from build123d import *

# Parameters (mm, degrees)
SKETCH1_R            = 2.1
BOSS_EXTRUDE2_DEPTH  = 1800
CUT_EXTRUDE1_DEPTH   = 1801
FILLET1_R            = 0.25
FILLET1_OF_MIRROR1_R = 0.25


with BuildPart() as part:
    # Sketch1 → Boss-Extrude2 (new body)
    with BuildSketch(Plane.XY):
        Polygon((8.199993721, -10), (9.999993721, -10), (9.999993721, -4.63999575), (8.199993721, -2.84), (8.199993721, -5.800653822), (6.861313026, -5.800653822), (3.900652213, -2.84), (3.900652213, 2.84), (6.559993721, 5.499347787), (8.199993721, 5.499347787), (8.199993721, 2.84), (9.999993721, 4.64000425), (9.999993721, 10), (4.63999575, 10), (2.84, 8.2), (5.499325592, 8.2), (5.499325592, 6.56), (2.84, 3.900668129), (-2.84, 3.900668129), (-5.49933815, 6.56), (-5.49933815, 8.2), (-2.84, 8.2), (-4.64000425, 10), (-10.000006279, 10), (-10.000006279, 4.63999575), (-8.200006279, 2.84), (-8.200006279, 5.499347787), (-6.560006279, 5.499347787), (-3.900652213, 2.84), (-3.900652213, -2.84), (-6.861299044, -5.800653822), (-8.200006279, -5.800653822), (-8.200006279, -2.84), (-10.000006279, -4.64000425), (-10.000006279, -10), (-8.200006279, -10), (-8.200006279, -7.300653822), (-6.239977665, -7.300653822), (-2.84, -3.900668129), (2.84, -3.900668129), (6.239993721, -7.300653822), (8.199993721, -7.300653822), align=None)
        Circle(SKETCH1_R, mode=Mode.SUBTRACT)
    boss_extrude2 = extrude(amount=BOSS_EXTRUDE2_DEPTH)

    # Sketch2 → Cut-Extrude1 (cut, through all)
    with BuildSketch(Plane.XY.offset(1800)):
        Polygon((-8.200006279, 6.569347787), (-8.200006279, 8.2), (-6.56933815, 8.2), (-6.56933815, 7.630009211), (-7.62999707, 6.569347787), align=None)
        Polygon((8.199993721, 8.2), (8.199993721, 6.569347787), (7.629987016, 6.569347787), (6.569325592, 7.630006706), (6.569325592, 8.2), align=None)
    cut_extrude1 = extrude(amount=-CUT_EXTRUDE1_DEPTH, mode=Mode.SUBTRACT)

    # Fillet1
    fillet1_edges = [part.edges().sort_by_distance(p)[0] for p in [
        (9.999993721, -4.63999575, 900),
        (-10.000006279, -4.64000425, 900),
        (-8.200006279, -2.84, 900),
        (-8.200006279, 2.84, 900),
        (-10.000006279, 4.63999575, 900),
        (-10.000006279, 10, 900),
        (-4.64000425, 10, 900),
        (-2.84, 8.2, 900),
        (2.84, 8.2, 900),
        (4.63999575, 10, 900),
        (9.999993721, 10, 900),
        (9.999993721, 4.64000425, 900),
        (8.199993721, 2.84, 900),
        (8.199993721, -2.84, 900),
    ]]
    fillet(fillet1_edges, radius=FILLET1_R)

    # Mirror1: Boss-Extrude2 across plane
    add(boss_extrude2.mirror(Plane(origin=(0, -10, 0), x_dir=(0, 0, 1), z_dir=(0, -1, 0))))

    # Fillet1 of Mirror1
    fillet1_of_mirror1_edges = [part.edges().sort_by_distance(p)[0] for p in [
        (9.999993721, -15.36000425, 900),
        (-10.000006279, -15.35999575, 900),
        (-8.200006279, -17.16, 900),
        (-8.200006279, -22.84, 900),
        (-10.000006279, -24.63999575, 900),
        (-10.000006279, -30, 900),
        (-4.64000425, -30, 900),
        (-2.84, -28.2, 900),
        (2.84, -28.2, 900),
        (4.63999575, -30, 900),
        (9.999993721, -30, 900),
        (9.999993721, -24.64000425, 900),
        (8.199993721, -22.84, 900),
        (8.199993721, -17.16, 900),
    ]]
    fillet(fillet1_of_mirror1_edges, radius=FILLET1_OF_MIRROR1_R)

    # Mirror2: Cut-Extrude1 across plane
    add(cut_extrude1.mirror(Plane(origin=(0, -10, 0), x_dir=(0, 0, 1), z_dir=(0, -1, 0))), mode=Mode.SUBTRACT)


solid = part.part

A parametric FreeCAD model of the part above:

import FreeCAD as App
import Part
import Sketcher

V = App.Vector
Q = App.Units.Quantity


def edges_at(feature, points):
    """Names of the edges that pass closest to the given points."""
    edges = feature.Shape.Edges
    near = lambda p: min(range(len(edges)), key=lambda i: edges[i].distToShape(Part.Vertex(*p))[0])
    return sorted({f"Edge{near(p) + 1}" for p in points})

doc = App.newDocument("Part")
body = doc.addObject("PartDesign::Body", "Body")

sketch1 = body.newObject("Sketcher::SketchObject", "Sketch")
sketch1.AttachmentSupport = (doc.getObject("XY_Plane"), [""])
sketch1.MapMode = "FlatFace"
sketch1.addGeometry([
    Part.LineSegment(V(8.199994, -10, 0), V(9.999994, -10, 0)),
    Part.LineSegment(V(9.999994, -10, 0), V(9.999994, -4.639996, 0)),
    Part.LineSegment(V(9.999994, -4.639996, 0), V(8.199994, -2.84, 0)),
    Part.LineSegment(V(8.199994, -2.84, 0), V(8.199994, -5.800654, 0)),
    Part.LineSegment(V(8.199994, -5.800654, 0), V(6.861313, -5.800654, 0)),
    Part.LineSegment(V(6.861313, -5.800654, 0), V(3.900652, -2.84, 0)),
    Part.LineSegment(V(3.900652, -2.84, 0), V(3.900652, 2.84, 0)),
    Part.LineSegment(V(3.900652, 2.84, 0), V(6.559994, 5.499348, 0)),
    Part.LineSegment(V(6.559994, 5.499348, 0), V(8.199994, 5.499348, 0)),
    Part.LineSegment(V(8.199994, 5.499348, 0), V(8.199994, 2.84, 0)),
    Part.LineSegment(V(8.199994, 2.84, 0), V(9.999994, 4.640004, 0)),
    Part.LineSegment(V(9.999994, 4.640004, 0), V(9.999994, 10, 0)),
    Part.LineSegment(V(9.999994, 10, 0), V(4.639996, 10, 0)),
    Part.LineSegment(V(4.639996, 10, 0), V(2.84, 8.2, 0)),
    Part.LineSegment(V(2.84, 8.2, 0), V(5.499326, 8.2, 0)),
    Part.LineSegment(V(5.499326, 8.2, 0), V(5.499326, 6.56, 0)),
    Part.LineSegment(V(5.499326, 6.56, 0), V(2.84, 3.900668, 0)),
    Part.LineSegment(V(2.84, 3.900668, 0), V(-2.84, 3.900668, 0)),
    Part.LineSegment(V(-2.84, 3.900668, 0), V(-5.499338, 6.56, 0)),
    Part.LineSegment(V(-5.499338, 6.56, 0), V(-5.499338, 8.2, 0)),
    Part.LineSegment(V(-5.499338, 8.2, 0), V(-2.84, 8.2, 0)),
    Part.LineSegment(V(-2.84, 8.2, 0), V(-4.640004, 10, 0)),
    Part.LineSegment(V(-4.640004, 10, 0), V(-10.000006, 10, 0)),
    Part.LineSegment(V(-10.000006, 10, 0), V(-10.000006, 4.639996, 0)),
    Part.LineSegment(V(-10.000006, 4.639996, 0), V(-8.200006, 2.84, 0)),
    Part.LineSegment(V(-8.200006, 2.84, 0), V(-8.200006, 5.499348, 0)),
    Part.LineSegment(V(-8.200006, 5.499348, 0), V(-6.560006, 5.499348, 0)),
    Part.LineSegment(V(-6.560006, 5.499348, 0), V(-3.900652, 2.84, 0)),
    Part.LineSegment(V(-3.900652, 2.84, 0), V(-3.900652, -2.84, 0)),
    Part.LineSegment(V(-3.900652, -2.84, 0), V(-6.861299, -5.800654, 0)),
    Part.LineSegment(V(-6.861299, -5.800654, 0), V(-8.200006, -5.800654, 0)),
    Part.LineSegment(V(-8.200006, -5.800654, 0), V(-8.200006, -2.84, 0)),
    Part.LineSegment(V(-8.200006, -2.84, 0), V(-10.000006, -4.640004, 0)),
    Part.LineSegment(V(-10.000006, -4.640004, 0), V(-10.000006, -10, 0)),
    Part.LineSegment(V(-10.000006, -10, 0), V(-8.200006, -10, 0)),
    Part.LineSegment(V(-8.200006, -10, 0), V(-8.200006, -7.300654, 0)),
    Part.LineSegment(V(-8.200006, -7.300654, 0), V(-6.239978, -7.300654, 0)),
    Part.LineSegment(V(-6.239978, -7.300654, 0), V(-2.84, -3.900668, 0)),
    Part.LineSegment(V(-2.84, -3.900668, 0), V(2.84, -3.900668, 0)),
    Part.LineSegment(V(2.84, -3.900668, 0), V(6.239994, -7.300654, 0)),
    Part.LineSegment(V(6.239994, -7.300654, 0), V(8.199994, -7.300654, 0)),
    Part.LineSegment(V(8.199994, -7.300654, 0), V(8.199994, -10, 0)),
    Part.Circle(V(0, 0, 0), V(0, 0, 1), 2.1),
], False)
sketch1.addConstraint([
    Sketcher.Constraint("Coincident", 0, 2, 1, 1),
    Sketcher.Constraint("Coincident", 1, 2, 2, 1),
    Sketcher.Constraint("Coincident", 2, 2, 3, 1),
    Sketcher.Constraint("Coincident", 3, 2, 4, 1),
    Sketcher.Constraint("Coincident", 4, 2, 5, 1),
    Sketcher.Constraint("Coincident", 5, 2, 6, 1),
    Sketcher.Constraint("Coincident", 6, 2, 7, 1),
    Sketcher.Constraint("Coincident", 7, 2, 8, 1),
    Sketcher.Constraint("Coincident", 8, 2, 9, 1),
    Sketcher.Constraint("Coincident", 9, 2, 10, 1),
    Sketcher.Constraint("Coincident", 10, 2, 11, 1),
    Sketcher.Constraint("Coincident", 11, 2, 12, 1),
    Sketcher.Constraint("Coincident", 12, 2, 13, 1),
    Sketcher.Constraint("Coincident", 13, 2, 14, 1),
    Sketcher.Constraint("Coincident", 14, 2, 15, 1),
    Sketcher.Constraint("Coincident", 15, 2, 16, 1),
    Sketcher.Constraint("Coincident", 16, 2, 17, 1),
    Sketcher.Constraint("Coincident", 17, 2, 18, 1),
    Sketcher.Constraint("Coincident", 18, 2, 19, 1),
    Sketcher.Constraint("Coincident", 19, 2, 20, 1),
    Sketcher.Constraint("Coincident", 20, 2, 21, 1),
    Sketcher.Constraint("Coincident", 21, 2, 22, 1),
    Sketcher.Constraint("Coincident", 22, 2, 23, 1),
    Sketcher.Constraint("Coincident", 23, 2, 24, 1),
    Sketcher.Constraint("Coincident", 24, 2, 25, 1),
    Sketcher.Constraint("Coincident", 25, 2, 26, 1),
    Sketcher.Constraint("Coincident", 26, 2, 27, 1),
    Sketcher.Constraint("Coincident", 27, 2, 28, 1),
    Sketcher.Constraint("Coincident", 28, 2, 29, 1),
    Sketcher.Constraint("Coincident", 29, 2, 30, 1),
    Sketcher.Constraint("Coincident", 30, 2, 31, 1),
    Sketcher.Constraint("Coincident", 31, 2, 32, 1),
    Sketcher.Constraint("Coincident", 32, 2, 33, 1),
    Sketcher.Constraint("Coincident", 33, 2, 34, 1),
    Sketcher.Constraint("Coincident", 34, 2, 35, 1),
    Sketcher.Constraint("Coincident", 35, 2, 36, 1),
    Sketcher.Constraint("Coincident", 36, 2, 37, 1),
    Sketcher.Constraint("Coincident", 37, 2, 38, 1),
    Sketcher.Constraint("Coincident", 38, 2, 39, 1),
    Sketcher.Constraint("Coincident", 39, 2, 40, 1),
    Sketcher.Constraint("Coincident", 40, 2, 41, 1),
    Sketcher.Constraint("Coincident", 41, 2, 0, 1),
    Sketcher.Constraint("Horizontal", 0),
    Sketcher.Constraint("Vertical", 1),
    Sketcher.Constraint("Vertical", 3),
    Sketcher.Constraint("Horizontal", 4),
    Sketcher.Constraint("Vertical", 6),
    Sketcher.Constraint("Horizontal", 8),
    Sketcher.Constraint("Vertical", 9),
    Sketcher.Constraint("Vertical", 11),
    Sketcher.Constraint("Horizontal", 12),
    Sketcher.Constraint("Horizontal", 14),
    Sketcher.Constraint("Vertical", 15),
    Sketcher.Constraint("Horizontal", 17),
    Sketcher.Constraint("Vertical", 19),
    Sketcher.Constraint("Horizontal", 20),
    Sketcher.Constraint("Horizontal", 22),
    Sketcher.Constraint("Vertical", 23),
    Sketcher.Constraint("Vertical", 25),
    Sketcher.Constraint("Horizontal", 26),
    Sketcher.Constraint("Vertical", 28),
    Sketcher.Constraint("Horizontal", 30),
    Sketcher.Constraint("Vertical", 31),
    Sketcher.Constraint("Vertical", 33),
    Sketcher.Constraint("Horizontal", 34),
    Sketcher.Constraint("Vertical", 35),
    Sketcher.Constraint("Horizontal", 36),
    Sketcher.Constraint("Horizontal", 38),
    Sketcher.Constraint("Horizontal", 40),
    Sketcher.Constraint("Vertical", 41),
    Sketcher.Constraint("Coincident", 42, 3, -1, 1),
    Sketcher.Constraint("Diameter", 42, Q("4.2 mm")),
    Sketcher.Constraint("DistanceX", 0, 1, 0, 2, Q("1.8 mm")),
    Sketcher.Constraint("DistanceX", 34, 1, 34, 2, Q("1.8 mm")),
    Sketcher.Constraint("DistanceY", 0, 2, -1, 1, Q("10 mm")),
    Sketcher.Constraint("DistanceY", -1, 1, 11, 2, Q("10 mm")),
    Sketcher.Constraint("DistanceY", -1, 1, 21, 2, Q("10 mm")),
    Sketcher.Constraint("DistanceY", 33, 2, -1, 1, Q("10 mm")),
    Sketcher.Constraint("DistanceX", 8, 1, 8, 2, Q("1.64 mm")),
    Sketcher.Constraint("DistanceX", 17, 2, 17, 1, Q("5.68 mm")),
    Sketcher.Constraint("DistanceX", 26, 1, 26, 2, Q("1.64 mm")),
    Sketcher.Constraint("DistanceX", 38, 1, 38, 2, Q("5.68 mm")),
    Sketcher.Constraint("DistanceX", 40, 1, 40, 2, Q("1.96 mm")),
    Sketcher.Constraint("DistanceY", 6, 1, 6, 2, Q("5.68 mm")),
    Sketcher.Constraint("DistanceY", 15, 2, 15, 1, Q("1.64 mm")),
    Sketcher.Constraint("DistanceY", 19, 1, 19, 2, Q("1.64 mm")),
    Sketcher.Constraint("DistanceY", 28, 2, 28, 1, Q("5.68 mm")),
    Sketcher.Constraint("DistanceY", -1, 1, 13, 2, Q("8.2 mm")),
    Sketcher.Constraint("DistanceY", -1, 1, 19, 2, Q("8.2 mm")),
    Sketcher.Constraint("DistanceX", 2, 2, 1, 2, Q("1.8 mm")),
    Sketcher.Constraint("DistanceX", 8, 2, 10, 2, Q("1.8 mm")),
    Sketcher.Constraint("DistanceX", 2, 2, 10, 2, Q("1.8 mm")),
    Sketcher.Constraint("DistanceX", 23, 2, 24, 2, Q("1.8 mm")),
    Sketcher.Constraint("DistanceX", 32, 2, 30, 2, Q("1.8 mm")),
    Sketcher.Constraint("DistanceX", 32, 2, 24, 2, Q("1.8 mm")),
    Sketcher.Constraint("DistanceY", 35, 2, 30, 2, Q("1.5 mm")),
    Sketcher.Constraint("DistanceY", 39, 2, 4, 2, Q("1.5 mm")),
    Sketcher.Constraint("DistanceY", 2, 2, -1, 1, Q("2.84 mm")),
    Sketcher.Constraint("DistanceY", 5, 2, -1, 1, Q("2.84 mm")),
    Sketcher.Constraint("DistanceY", -1, 1, 9, 2, Q("2.84 mm")),
    Sketcher.Constraint("DistanceX", -1, 1, 13, 2, Q("2.84 mm")),
    Sketcher.Constraint("DistanceX", -1, 1, 16, 2, Q("2.84 mm")),
    Sketcher.Constraint("DistanceX", 20, 2, -1, 1, Q("2.84 mm")),
    Sketcher.Constraint("DistanceY", -1, 1, 24, 2, Q("2.84 mm")),
    Sketcher.Constraint("DistanceY", -1, 1, 27, 2, Q("2.84 mm")),
    Sketcher.Constraint("DistanceY", 31, 2, -1, 1, Q("2.84 mm")),
    Sketcher.Constraint("DistanceX", 37, 2, -1, 1, Q("2.84 mm")),
    Sketcher.Constraint("Distance", 5, Q("4.187002 mm")),
    Sketcher.Constraint("Distance", 37, Q("4.8083 mm")),
    Sketcher.Constraint("DistanceX", 4, 2, 4, 1, Q("1.338681 mm")),
    Sketcher.Constraint("DistanceX", 20, 1, 20, 2, Q("2.659338 mm")),
    Sketcher.Constraint("DistanceX", 36, 1, 36, 2, Q("1.960029 mm")),
    Sketcher.Constraint("DistanceX", 29, 2, -1, 1, Q("6.861299 mm")),
    Sketcher.Constraint("Distance", 2, Q("2.545581 mm")),
    Sketcher.Constraint("Distance", 7, Q("3.760881 mm")),
    Sketcher.Constraint("Distance", 13, Q("2.545581 mm")),
    Sketcher.Constraint("Distance", 16, Q("3.760859 mm")),
    Sketcher.Constraint("Distance", 24, Q("2.545581 mm")),
    Sketcher.Constraint("Distance", 27, Q("3.76089 mm")),
    Sketcher.Constraint("Distance", 29, Q("4.186992 mm")),
    Sketcher.Constraint("Distance", 39, Q("4.808312 mm")),
    Sketcher.Constraint("DistanceX", 12, 2, 12, 1, Q("5.359998 mm")),
    Sketcher.Constraint("DistanceX", 14, 1, 14, 2, Q("2.659326 mm")),
    Sketcher.Constraint("DistanceX", 22, 2, 22, 1, Q("5.360002 mm")),
    Sketcher.Constraint("DistanceX", 30, 2, 30, 1, Q("1.338707 mm")),
    Sketcher.Constraint("DistanceY", 3, 2, 3, 1, Q("2.960654 mm")),
    Sketcher.Constraint("DistanceY", 11, 1, 11, 2, Q("5.359996 mm")),
    Sketcher.Constraint("DistanceY", 33, 2, 33, 1, Q("5.359996 mm")),
])
pad1 = body.newObject("PartDesign::Pad", "Pad")
pad1.Profile = sketch1
pad1.Length = 1800

sketch2 = body.newObject("Sketcher::SketchObject", "Sketch001")
sketch2.AttachmentSupport = (doc.getObject("XY_Plane"), [""])
sketch2.MapMode = "FlatFace"
sketch2.AttachmentOffset = App.Placement(V(0, 0, 1800), App.Rotation())
sketch2.addGeometry([
    Part.LineSegment(V(-8.2, 8.2, 0), V(-8.2, 6.6, 0)),
    Part.LineSegment(V(-8.2, 6.6, 0), V(-7.6, 6.6, 0)),
    Part.LineSegment(V(-7.6, 6.6, 0), V(-6.6, 7.6, 0)),
    Part.LineSegment(V(-6.6, 7.6, 0), V(-6.6, 8.2, 0)),
    Part.LineSegment(V(-6.6, 8.2, 0), V(-8.2, 8.2, 0)),
    Part.LineSegment(V(8.2, 6.6, 0), V(8.2, 8.2, 0)),
    Part.LineSegment(V(8.2, 8.2, 0), V(6.6, 8.2, 0)),
    Part.LineSegment(V(6.6, 8.2, 0), V(6.6, 7.6, 0)),
    Part.LineSegment(V(6.6, 7.6, 0), V(7.6, 6.6, 0)),
    Part.LineSegment(V(7.6, 6.6, 0), V(8.2, 6.6, 0)),
], False)
sketch2.addConstraint([
    Sketcher.Constraint("Coincident", 0, 2, 1, 1),
    Sketcher.Constraint("Coincident", 1, 2, 2, 1),
    Sketcher.Constraint("Coincident", 2, 2, 3, 1),
    Sketcher.Constraint("Coincident", 3, 2, 4, 1),
    Sketcher.Constraint("Coincident", 4, 2, 0, 1),
    Sketcher.Constraint("Coincident", 5, 2, 6, 1),
    Sketcher.Constraint("Coincident", 6, 2, 7, 1),
    Sketcher.Constraint("Coincident", 7, 2, 8, 1),
    Sketcher.Constraint("Coincident", 8, 2, 9, 1),
    Sketcher.Constraint("Coincident", 9, 2, 5, 1),
    Sketcher.Constraint("Vertical", 0),
    Sketcher.Constraint("Horizontal", 1),
    Sketcher.Constraint("Vertical", 3),
    Sketcher.Constraint("Horizontal", 4),
    Sketcher.Constraint("Vertical", 5),
    Sketcher.Constraint("Horizontal", 6),
    Sketcher.Constraint("Vertical", 7),
    Sketcher.Constraint("Horizontal", 9),
    Sketcher.Constraint("Perpendicular", 2, 8),
    Sketcher.Constraint("Horizontal", 4, 2, 5, 2),
    Sketcher.Constraint("Horizontal", 1, 2, 8, 2),
    Sketcher.Constraint("Equal", 4, 6),
    Sketcher.Constraint("Equal", 2, 8),
    Sketcher.Constraint("Distance", 2, Q("1.5 mm")),
    Sketcher.Constraint("DistanceY", -1, 1, 3, 2, Q("8.2 mm")),
    Sketcher.Constraint("DistanceX", 4, 2, 5, 2, Q("16.4 mm")),
    Sketcher.Constraint("DistanceX", 1, 1, 1, 2, Q("0.570009 mm")),
    Sketcher.Constraint("DistanceX", 4, 2, 4, 1, Q("1.630668 mm")),
    Sketcher.Constraint("DistanceY", 3, 1, 3, 2, Q("0.569991 mm")),
    Sketcher.Constraint("DistanceX", 2, 2, -1, 1, Q("6.569338 mm")),
])
pocket1 = body.newObject("PartDesign::Pocket", "Pocket")
pocket1.Profile = sketch2
pocket1.Type = "ThroughAll"
doc.recompute()

fillet = body.newObject("PartDesign::Fillet", "Fillet")
fillet.Base = (pocket1, edges_at(pocket1, [
    (10, -4.64, 900),
    (-10, -4.64, 900),
    (-8.2, -2.84, 900),
    (-8.2, 2.84, 900),
    (-10, 4.64, 900),
    (-10, 10, 900),
    (-4.64, 10, 900),
    (-2.84, 8.2, 900),
    (2.84, 8.2, 900),
    (4.64, 10, 900),
    (10, 10, 900),
    (10, 4.64, 900),
    (8.2, 2.84, 900),
    (8.2, -2.84, 900),
]))
fillet.Radius = 0.25
doc.recompute()

datumplane = body.newObject("PartDesign::Plane", "DatumPlane")
datumplane.AttachmentSupport = (doc.getObject("XZ_Plane"), [""])
datumplane.MapMode = "FlatFace"
datumplane.AttachmentOffset = App.Placement(V(0, 0, 10), App.Rotation())
mirrored = body.newObject("PartDesign::Mirrored", "Mirrored")
mirrored.Originals = [pad1]
mirrored.MirrorPlane = (datumplane, [""])
body.Tip = mirrored
doc.recompute()

fillet2 = body.newObject("PartDesign::Fillet", "Fillet001")
fillet2.Base = (mirrored, edges_at(mirrored, [
    (10, -15.36, 900),
    (-10, -15.36, 900),
    (-8.2, -17.16, 900),
    (-8.2, -22.84, 900),
    (-10, -24.64, 900),
    (-10, -30, 900),
    (-4.64, -30, 900),
    (-2.84, -28.2, 900),
    (2.84, -28.2, 900),
    (4.64, -30, 900),
    (10, -30, 900),
    (10, -24.64, 900),
    (8.2, -22.84, 900),
    (8.2, -17.16, 900),
]))
fillet2.Radius = 0.25
doc.recompute()

datumplane2 = body.newObject("PartDesign::Plane", "DatumPlane001")
datumplane2.AttachmentSupport = (doc.getObject("XZ_Plane"), [""])
datumplane2.MapMode = "FlatFace"
datumplane2.AttachmentOffset = App.Placement(V(0, 0, 10), App.Rotation())
mirrored2 = body.newObject("PartDesign::Mirrored", "Mirrored001")
mirrored2.Originals = [pocket1]
mirrored2.MirrorPlane = (datumplane2, [""])
body.Tip = mirrored2

doc.recompute()
